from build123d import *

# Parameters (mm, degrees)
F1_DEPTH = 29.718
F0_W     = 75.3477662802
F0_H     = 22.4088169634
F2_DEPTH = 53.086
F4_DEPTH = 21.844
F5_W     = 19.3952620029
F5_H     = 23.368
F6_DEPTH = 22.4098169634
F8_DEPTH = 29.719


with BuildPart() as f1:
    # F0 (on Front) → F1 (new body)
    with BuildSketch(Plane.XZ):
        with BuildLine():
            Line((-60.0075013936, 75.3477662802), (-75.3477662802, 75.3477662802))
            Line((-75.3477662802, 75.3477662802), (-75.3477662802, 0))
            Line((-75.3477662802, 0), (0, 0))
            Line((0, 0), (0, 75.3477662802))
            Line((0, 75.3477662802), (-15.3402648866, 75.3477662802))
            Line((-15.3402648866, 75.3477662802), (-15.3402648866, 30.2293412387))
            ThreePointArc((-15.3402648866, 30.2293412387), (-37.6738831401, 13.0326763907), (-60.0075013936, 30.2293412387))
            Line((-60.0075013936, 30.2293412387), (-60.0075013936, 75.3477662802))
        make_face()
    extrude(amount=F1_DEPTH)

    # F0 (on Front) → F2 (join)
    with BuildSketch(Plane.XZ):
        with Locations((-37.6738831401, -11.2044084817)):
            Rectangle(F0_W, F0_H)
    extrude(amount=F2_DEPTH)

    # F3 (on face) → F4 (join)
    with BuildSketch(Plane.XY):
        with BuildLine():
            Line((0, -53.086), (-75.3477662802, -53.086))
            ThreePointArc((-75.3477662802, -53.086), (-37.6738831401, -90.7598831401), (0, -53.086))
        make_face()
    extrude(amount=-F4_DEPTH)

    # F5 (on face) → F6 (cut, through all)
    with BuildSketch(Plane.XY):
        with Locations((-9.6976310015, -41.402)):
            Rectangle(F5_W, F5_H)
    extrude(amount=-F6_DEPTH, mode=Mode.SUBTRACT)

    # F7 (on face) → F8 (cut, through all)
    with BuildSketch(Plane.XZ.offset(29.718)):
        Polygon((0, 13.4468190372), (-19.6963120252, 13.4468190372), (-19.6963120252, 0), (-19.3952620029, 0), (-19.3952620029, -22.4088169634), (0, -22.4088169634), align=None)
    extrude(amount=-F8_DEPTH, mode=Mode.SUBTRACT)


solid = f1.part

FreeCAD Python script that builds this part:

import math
import FreeCAD as App
import Part
import Sketcher

V = App.Vector
Q = App.Units.Quantity


def add_polygon(sketch, points):
    """Adds a closed chain of lines whose ends are joined by coincident constraints."""
    first, n = sketch.GeometryCount, len(points)
    for a, b in zip(points, points[1:] + points[:1]):
        sketch.addGeometry(Part.LineSegment(App.Vector(*a, 0), App.Vector(*b, 0)), False)
    for i in range(n):
        sketch.addConstraint(Sketcher.Constraint("Coincident", first + i, 2, first + (i + 1) % n, 1))

doc = App.newDocument("Part")
body = doc.addObject("PartDesign::Body", "Body")

# Sketch on XZ plane
sketch1 = body.newObject("Sketcher::SketchObject", "Sketch")
sketch1.AttachmentSupport = (doc.getObject("XZ_Plane"), [""])
sketch1.MapMode = "FlatFace"
sketch1.addGeometry(Part.LineSegment(V(-60, 75, 0), V(-75, 75, 0)), False)
sketch1.addGeometry(Part.LineSegment(V(-75, 75, 0), V(-75, 0, 0)), False)
sketch1.addGeometry(Part.LineSegment(V(-75, 0, 0), V(0, 0, 0)), False)
sketch1.addGeometry(Part.LineSegment(V(0, 0, 0), V(0, 75, 0)), False)
sketch1.addGeometry(Part.LineSegment(V(0, 75, 0), V(-15, 75, 0)), False)
sketch1.addGeometry(Part.LineSegment(V(-15, 75, 0), V(-15, 30, 0)), False)
sketch1.addGeometry(Part.ArcOfCircle(Part.Circle(V(-38, 36, 0), V(0, 0, 1), 23), math.radians(-165), math.radians(-15)), False)
sketch1.addGeometry(Part.LineSegment(V(-60, 30, 0), V(-60, 75, 0)), False)
sketch1.addConstraint(Sketcher.Constraint("Coincident", 0, 2, 1, 1))
sketch1.addConstraint(Sketcher.Constraint("Coincident", 1, 2, 2, 1))
sketch1.addConstraint(Sketcher.Constraint("Coincident", 2, 2, 3, 1))
sketch1.addConstraint(Sketcher.Constraint("Coincident", 3, 2, 4, 1))
sketch1.addConstraint(Sketcher.Constraint("Coincident", 4, 2, 5, 1))
sketch1.addConstraint(Sketcher.Constraint("Coincident", 5, 2, 6, 2))
sketch1.addConstraint(Sketcher.Constraint("Coincident", 6, 1, 7, 1))
sketch1.addConstraint(Sketcher.Constraint("Coincident", 7, 2, 0, 1))
sketch1.addConstraint(Sketcher.Constraint("Horizontal", 0))
sketch1.addConstraint(Sketcher.Constraint("Vertical", 1))
sketch1.addConstraint(Sketcher.Constraint("Horizontal", 2))
sketch1.addConstraint(Sketcher.Constraint("Vertical", 3))
sketch1.addConstraint(Sketcher.Constraint("Horizontal", 4))
sketch1.addConstraint(Sketcher.Constraint("Vertical", 5))
sketch1.addConstraint(Sketcher.Constraint("Vertical", 7))
sketch1.addConstraint(Sketcher.Constraint("Coincident", 2, 2, -1, 1))
sketch1.addConstraint(Sketcher.Constraint("Horizontal", 0, 2, 3, 2))
sketch1.addConstraint(Sketcher.Constraint("Horizontal", 5, 2, 6, 1))
sketch1.addConstraint(Sketcher.Constraint("Equal", 0, 4))
sketch1.addConstraint(Sketcher.Constraint("Equal", 2, 1))
sketch1.addConstraint(Sketcher.Constraint("Radius", 6, 23.100868))
sketch1.addConstraint(Sketcher.Constraint("DistanceX", 6, 1, -1, 1, Q("2.3625001 in")))
sketch1.addConstraint(Sketcher.Constraint("DistanceX", 0, 2, 0, 1, 15.340265))
sketch1.addConstraint(Sketcher.Constraint("DistanceY", 5, 2, 5, 1, 45.118425))
pad1 = body.newObject("PartDesign::Pad", "Pad")
pad1.Profile = sketch1
pad1.Length = Q("1.17 in")

# Sketch on XZ plane
sketch2 = body.newObject("Sketcher::SketchObject", "Sketch001")
sketch2.AttachmentSupport = (doc.getObject("XZ_Plane"), [""])
sketch2.MapMode = "FlatFace"
add_polygon(sketch2, [(-75, 0), (-75, -22), (0, -22), (0, 0)])  # lines 0-3
sketch2.addConstraint(Sketcher.Constraint("Vertical", 0))
sketch2.addConstraint(Sketcher.Constraint("Horizontal", 1))
sketch2.addConstraint(Sketcher.Constraint("Vertical", 2))
sketch2.addConstraint(Sketcher.Constraint("Horizontal", 3))
sketch2.addConstraint(Sketcher.Constraint("Coincident", 2, 2, -1, 1))
sketch2.addConstraint(Sketcher.Constraint("DistanceX", 1, 1, 1, 2, 75.347766))
sketch2.addConstraint(Sketcher.Constraint("DistanceY", 0, 2, 0, 1, 22.408817))
pad2 = body.newObject("PartDesign::Pad", "Pad001")
pad2.Profile = sketch2
pad2.Length = Q("2.09 in")

# Sketch on XY plane
sketch3 = body.newObject("Sketcher::SketchObject", "Sketch002")
sketch3.AttachmentSupport = (doc.getObject("XY_Plane"), [""])
sketch3.MapMode = "FlatFace"
sketch3.addGeometry(Part.LineSegment(V(0, -53, 0), V(-75, -53, 0)), False)
sketch3.addGeometry(Part.ArcOfCircle(Part.Circle(V(-38, -53, 0), V(0, 0, 1), 38), math.radians(180), math.radians(360)), False)
sketch3.addConstraint(Sketcher.Constraint("Coincident", 0, 1, 1, 2))
sketch3.addConstraint(Sketcher.Constraint("Coincident", 1, 1, 0, 2))
sketch3.addConstraint(Sketcher.Constraint("Horizontal", 0))
sketch3.addConstraint(Sketcher.Constraint("PointOnObject", 0, 1, -2))
sketch3.addConstraint(Sketcher.Constraint("Horizontal", 1, 3, 0, 1))
sketch3.addConstraint(Sketcher.Constraint("DistanceY", 1, 3, -1, 1, Q("2.09 in")))
sketch3.addConstraint(Sketcher.Constraint("Radius", 1, 37.673883))
pad3 = body.newObject("PartDesign::Pad", "Pad002")
pad3.Profile = sketch3
pad3.Length = Q("0.86 in")
pad3.Reversed = True

# Sketch on XY plane
sketch4 = body.newObject("Sketcher::SketchObject", "Sketch003")
sketch4.AttachmentSupport = (doc.getObject("XY_Plane"), [""])
sketch4.MapMode = "FlatFace"
add_polygon(sketch4, [(-19, -30), (-19, -53), (0, -53), (0, -30)])  # lines 0-3
sketch4.addConstraint(Sketcher.Constraint("Vertical", 0))
sketch4.addConstraint(Sketcher.Constraint("Horizontal", 1))
sketch4.addConstraint(Sketcher.Constraint("Vertical", 2))
sketch4.addConstraint(Sketcher.Constraint("Horizontal", 3))
sketch4.addConstraint(Sketcher.Constraint("PointOnObject", 1, 2, -2))
sketch4.addConstraint(Sketcher.Constraint("DistanceY", 0, 2, 0, 1, Q("0.92 in")))
sketch4.addConstraint(Sketcher.Constraint("DistanceY", 0, 2, -1, 1, Q("2.09 in")))
sketch4.addConstraint(Sketcher.Constraint("DistanceX", 1, 1, 1, 2, 19.395262))
pocket1 = body.newObject("PartDesign::Pocket", "Pocket")
pocket1.Profile = sketch4
pocket1.Type = "ThroughAll"

# Sketch on XZ plane
sketch5 = body.newObject("Sketcher::SketchObject", "Sketch004")
sketch5.AttachmentSupport = (doc.getObject("XZ_Plane"), [""])
sketch5.MapMode = "FlatFace"
sketch5.AttachmentOffset = App.Placement(V(0, 0, 1.17 * 25.4), App.Rotation())
add_polygon(sketch5, [(0, 13.45), (-19.7, 13.45), (-19.7, 0), (-19.4, 0), (-19.4, -22.41), (0, -22.41)])  # lines 0-5
sketch5.addConstraint(Sketcher.Constraint("Horizontal", 0))
sketch5.addConstraint(Sketcher.Constraint("Vertical", 1))
sketch5.addConstraint(Sketcher.Constraint("Horizontal", 2))
sketch5.addConstraint(Sketcher.Constraint("Vertical", 3))
sketch5.addConstraint(Sketcher.Constraint("Horizontal", 4))
sketch5.addConstraint(Sketcher.Constraint("Vertical", 5))
sketch5.addConstraint(Sketcher.Constraint("PointOnObject", 1, 2, -1))
sketch5.addConstraint(Sketcher.Constraint("PointOnObject", 4, 2, -2))
sketch5.addConstraint(Sketcher.Constraint("DistanceX", 2, 1, 2, 2, 0.30105))
sketch5.addConstraint(Sketcher.Constraint("DistanceY", 1, 2, 1, 1, 13.446819))
sketch5.addConstraint(Sketcher.Constraint("DistanceX", 0, 2, 0, 1, 19.696312))
sketch5.addConstraint(Sketcher.Constraint("DistanceY", 3, 2, 3, 1, 22.408817))
pocket2 = body.newObject("PartDesign::Pocket", "Pocket001")
pocket2.Profile = sketch5
pocket2.Type = "ThroughAll"

doc.recompute()
